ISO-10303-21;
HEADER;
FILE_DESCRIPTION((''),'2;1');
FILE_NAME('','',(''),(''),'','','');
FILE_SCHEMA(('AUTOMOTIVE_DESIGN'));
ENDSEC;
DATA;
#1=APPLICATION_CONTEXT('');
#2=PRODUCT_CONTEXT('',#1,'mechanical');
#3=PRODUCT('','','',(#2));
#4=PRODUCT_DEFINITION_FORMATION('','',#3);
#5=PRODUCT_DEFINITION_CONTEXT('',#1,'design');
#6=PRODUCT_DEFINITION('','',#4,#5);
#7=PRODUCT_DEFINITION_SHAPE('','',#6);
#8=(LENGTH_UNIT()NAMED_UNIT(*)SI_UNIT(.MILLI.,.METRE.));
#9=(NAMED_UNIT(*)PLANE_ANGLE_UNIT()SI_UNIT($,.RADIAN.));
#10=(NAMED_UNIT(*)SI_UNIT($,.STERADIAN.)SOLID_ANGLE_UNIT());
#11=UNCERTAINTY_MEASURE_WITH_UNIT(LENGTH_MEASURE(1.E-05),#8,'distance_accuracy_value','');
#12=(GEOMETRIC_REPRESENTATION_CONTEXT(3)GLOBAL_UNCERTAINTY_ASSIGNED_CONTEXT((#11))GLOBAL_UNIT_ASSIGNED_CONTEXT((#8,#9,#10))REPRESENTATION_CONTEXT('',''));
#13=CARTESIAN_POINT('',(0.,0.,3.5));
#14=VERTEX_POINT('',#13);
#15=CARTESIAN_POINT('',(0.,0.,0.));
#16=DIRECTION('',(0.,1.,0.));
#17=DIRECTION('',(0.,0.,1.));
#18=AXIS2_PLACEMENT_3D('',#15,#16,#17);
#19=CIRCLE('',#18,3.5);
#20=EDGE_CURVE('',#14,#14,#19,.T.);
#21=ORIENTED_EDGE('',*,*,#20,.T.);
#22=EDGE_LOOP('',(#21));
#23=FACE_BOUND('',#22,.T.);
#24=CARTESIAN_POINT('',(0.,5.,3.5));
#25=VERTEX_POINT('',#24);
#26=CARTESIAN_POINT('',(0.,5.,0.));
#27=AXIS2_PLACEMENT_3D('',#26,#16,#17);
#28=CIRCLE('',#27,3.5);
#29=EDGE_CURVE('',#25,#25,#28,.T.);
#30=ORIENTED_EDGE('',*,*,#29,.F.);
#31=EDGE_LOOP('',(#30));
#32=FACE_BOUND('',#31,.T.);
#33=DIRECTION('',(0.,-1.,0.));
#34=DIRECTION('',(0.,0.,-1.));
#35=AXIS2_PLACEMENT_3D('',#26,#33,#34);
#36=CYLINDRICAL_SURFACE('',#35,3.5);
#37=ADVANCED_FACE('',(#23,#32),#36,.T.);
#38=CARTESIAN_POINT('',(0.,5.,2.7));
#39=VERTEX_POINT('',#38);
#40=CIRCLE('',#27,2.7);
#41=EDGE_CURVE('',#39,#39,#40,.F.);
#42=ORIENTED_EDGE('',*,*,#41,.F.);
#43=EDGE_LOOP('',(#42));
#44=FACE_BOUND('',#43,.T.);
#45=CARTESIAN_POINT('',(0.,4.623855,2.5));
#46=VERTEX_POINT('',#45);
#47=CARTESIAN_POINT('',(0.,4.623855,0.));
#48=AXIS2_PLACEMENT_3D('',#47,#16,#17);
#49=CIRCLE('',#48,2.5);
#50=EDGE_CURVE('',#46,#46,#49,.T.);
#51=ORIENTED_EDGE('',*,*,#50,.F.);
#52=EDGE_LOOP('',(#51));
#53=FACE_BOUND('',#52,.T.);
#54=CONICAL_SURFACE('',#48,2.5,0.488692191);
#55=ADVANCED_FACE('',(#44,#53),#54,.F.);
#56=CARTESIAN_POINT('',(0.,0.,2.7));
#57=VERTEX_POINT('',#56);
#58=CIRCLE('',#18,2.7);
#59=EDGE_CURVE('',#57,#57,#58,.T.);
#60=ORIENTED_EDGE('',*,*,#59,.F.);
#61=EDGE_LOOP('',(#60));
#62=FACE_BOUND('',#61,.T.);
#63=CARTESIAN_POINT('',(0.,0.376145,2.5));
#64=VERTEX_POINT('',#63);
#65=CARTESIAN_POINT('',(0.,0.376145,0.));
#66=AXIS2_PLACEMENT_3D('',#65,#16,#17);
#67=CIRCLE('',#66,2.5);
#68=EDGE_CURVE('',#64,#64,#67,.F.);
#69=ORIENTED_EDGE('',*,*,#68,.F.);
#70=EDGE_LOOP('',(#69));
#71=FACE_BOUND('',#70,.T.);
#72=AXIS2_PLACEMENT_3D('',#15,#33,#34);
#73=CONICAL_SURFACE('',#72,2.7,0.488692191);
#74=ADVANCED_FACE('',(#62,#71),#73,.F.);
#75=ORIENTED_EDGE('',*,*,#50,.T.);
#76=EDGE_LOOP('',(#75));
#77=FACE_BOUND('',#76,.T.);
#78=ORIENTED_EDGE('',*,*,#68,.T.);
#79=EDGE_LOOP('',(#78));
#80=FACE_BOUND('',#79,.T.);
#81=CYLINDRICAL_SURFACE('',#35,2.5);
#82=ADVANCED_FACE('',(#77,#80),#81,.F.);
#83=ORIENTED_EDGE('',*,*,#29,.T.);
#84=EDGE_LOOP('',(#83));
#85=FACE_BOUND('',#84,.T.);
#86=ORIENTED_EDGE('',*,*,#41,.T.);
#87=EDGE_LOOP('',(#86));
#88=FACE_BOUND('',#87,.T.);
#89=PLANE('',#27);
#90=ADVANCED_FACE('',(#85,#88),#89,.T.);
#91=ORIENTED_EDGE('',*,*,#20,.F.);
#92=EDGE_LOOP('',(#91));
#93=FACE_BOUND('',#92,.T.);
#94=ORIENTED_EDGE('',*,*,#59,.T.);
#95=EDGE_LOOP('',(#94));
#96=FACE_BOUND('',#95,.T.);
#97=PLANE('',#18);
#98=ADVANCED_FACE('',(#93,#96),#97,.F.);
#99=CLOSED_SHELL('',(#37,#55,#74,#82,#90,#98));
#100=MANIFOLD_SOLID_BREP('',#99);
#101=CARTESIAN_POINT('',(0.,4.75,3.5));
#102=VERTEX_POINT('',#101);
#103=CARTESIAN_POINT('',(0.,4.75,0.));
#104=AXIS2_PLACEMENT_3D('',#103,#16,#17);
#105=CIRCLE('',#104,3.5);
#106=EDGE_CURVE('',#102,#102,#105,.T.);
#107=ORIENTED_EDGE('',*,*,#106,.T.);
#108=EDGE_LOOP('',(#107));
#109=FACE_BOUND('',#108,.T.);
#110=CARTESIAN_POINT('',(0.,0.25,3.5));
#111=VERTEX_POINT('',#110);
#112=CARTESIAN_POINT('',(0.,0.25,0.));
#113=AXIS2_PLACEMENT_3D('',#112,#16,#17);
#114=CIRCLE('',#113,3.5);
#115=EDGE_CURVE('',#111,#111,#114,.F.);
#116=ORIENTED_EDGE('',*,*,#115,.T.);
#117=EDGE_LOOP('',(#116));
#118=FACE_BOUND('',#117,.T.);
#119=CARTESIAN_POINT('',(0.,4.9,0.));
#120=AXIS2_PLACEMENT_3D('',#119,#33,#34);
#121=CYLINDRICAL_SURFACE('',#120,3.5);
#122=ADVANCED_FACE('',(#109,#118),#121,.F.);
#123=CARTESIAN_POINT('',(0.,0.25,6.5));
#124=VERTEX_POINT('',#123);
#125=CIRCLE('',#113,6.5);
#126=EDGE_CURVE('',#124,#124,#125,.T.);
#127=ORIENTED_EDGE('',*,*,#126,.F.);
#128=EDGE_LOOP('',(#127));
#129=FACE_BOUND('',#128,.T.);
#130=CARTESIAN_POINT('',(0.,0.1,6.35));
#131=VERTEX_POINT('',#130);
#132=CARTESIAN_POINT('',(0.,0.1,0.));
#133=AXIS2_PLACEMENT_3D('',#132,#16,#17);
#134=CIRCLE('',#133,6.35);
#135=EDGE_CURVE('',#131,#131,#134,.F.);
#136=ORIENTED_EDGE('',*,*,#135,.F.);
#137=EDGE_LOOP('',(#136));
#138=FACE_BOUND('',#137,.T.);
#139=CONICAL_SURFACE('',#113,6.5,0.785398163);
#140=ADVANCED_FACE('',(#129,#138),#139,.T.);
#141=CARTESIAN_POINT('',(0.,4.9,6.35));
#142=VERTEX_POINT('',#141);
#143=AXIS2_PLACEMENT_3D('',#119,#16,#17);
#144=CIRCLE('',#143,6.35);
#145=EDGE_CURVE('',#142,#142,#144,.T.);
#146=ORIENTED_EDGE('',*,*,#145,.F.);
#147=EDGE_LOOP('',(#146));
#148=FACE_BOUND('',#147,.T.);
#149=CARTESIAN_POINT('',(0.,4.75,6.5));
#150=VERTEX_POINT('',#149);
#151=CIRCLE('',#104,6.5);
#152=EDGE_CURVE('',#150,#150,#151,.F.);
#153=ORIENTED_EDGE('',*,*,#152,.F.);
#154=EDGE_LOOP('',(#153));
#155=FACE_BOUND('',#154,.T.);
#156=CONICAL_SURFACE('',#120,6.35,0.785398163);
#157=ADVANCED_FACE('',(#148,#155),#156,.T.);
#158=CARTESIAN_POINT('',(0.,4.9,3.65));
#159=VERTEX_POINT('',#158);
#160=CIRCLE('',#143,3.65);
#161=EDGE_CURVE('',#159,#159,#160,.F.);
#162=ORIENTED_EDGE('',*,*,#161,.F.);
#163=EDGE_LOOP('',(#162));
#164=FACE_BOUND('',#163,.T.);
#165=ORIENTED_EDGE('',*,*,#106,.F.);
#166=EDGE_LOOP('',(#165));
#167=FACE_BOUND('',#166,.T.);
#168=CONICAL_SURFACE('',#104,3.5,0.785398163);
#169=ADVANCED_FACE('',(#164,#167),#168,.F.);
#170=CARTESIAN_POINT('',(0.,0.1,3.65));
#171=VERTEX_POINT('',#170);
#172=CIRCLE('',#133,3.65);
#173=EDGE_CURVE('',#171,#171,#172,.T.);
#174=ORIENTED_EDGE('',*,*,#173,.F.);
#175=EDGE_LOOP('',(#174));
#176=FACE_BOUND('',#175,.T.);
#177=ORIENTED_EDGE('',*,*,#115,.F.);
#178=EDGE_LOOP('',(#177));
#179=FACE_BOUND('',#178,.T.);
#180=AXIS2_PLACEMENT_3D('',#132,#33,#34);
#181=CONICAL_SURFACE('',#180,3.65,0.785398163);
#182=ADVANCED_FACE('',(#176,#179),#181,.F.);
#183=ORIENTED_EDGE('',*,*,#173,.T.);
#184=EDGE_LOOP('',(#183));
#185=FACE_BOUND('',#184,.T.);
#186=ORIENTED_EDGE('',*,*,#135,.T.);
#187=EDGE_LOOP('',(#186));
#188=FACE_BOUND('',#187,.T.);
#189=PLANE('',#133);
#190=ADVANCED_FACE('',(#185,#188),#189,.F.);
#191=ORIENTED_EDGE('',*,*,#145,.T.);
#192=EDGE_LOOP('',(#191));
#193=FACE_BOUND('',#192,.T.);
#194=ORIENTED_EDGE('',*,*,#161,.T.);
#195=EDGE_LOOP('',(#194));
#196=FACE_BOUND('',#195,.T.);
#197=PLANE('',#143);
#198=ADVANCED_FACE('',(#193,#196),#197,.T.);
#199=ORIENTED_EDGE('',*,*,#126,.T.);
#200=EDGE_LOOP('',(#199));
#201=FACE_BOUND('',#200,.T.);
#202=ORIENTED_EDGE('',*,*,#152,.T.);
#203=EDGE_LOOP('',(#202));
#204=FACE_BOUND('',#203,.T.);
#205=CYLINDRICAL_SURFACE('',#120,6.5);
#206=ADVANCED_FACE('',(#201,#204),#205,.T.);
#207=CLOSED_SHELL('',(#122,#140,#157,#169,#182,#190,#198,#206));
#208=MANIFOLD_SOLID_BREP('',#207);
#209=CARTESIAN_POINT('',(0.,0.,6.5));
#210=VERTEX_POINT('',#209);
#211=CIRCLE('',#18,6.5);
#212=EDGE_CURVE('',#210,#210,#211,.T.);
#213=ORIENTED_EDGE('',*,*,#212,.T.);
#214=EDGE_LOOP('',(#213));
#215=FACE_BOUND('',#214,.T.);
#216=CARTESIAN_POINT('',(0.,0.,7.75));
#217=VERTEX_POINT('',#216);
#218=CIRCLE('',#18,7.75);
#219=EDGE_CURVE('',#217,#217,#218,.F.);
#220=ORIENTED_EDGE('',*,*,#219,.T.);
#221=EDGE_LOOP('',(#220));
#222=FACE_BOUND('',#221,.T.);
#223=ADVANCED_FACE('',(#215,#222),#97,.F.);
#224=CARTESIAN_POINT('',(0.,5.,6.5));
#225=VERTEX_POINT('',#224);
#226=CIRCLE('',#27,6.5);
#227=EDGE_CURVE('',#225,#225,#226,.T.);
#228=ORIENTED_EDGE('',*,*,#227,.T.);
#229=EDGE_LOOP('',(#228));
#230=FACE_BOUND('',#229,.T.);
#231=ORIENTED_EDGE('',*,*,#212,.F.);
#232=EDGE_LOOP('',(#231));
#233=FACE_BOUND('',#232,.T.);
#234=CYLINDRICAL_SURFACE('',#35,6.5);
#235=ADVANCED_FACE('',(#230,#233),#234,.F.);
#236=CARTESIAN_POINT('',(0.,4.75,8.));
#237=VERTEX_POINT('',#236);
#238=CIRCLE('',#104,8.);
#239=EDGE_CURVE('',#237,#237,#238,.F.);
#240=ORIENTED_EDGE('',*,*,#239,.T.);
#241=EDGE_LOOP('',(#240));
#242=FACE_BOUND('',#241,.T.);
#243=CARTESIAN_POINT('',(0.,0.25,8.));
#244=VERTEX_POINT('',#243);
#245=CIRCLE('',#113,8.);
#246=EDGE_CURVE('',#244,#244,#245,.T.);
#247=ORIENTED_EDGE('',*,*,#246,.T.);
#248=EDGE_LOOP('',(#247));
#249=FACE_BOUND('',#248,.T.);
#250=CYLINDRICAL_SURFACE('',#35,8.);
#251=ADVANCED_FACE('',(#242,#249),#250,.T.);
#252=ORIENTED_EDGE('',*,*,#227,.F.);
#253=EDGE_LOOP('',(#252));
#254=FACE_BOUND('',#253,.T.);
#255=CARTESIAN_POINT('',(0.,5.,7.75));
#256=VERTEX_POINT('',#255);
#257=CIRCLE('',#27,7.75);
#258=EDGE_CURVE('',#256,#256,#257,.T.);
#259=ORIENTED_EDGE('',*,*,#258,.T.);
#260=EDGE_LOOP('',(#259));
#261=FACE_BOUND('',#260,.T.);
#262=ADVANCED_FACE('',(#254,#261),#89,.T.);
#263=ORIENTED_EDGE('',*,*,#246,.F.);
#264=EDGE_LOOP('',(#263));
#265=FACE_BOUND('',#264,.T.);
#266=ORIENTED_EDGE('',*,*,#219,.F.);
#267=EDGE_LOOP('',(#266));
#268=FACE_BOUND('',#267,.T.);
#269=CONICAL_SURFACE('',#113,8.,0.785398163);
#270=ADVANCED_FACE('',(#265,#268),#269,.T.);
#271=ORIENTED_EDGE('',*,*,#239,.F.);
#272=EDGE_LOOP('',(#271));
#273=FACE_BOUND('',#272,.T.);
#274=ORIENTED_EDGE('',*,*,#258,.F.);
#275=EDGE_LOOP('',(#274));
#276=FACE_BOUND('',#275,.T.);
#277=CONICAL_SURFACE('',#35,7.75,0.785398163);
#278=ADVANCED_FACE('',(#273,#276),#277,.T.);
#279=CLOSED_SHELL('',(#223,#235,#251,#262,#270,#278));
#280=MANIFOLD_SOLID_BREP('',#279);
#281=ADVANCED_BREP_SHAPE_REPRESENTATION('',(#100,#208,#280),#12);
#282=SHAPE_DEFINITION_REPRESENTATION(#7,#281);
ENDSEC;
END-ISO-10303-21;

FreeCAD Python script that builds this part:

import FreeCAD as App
import Part
import Sketcher
Q = App.Units.Quantity


def edges_at(feature, points):
    """Names of the edges that pass closest to the given points."""
    edges = feature.Shape.Edges
    near = lambda p: min(range(len(edges)), key=lambda i: edges[i].distToShape(Part.Vertex(*p))[0])
    return sorted({f"Edge{near(p) + 1}" for p in points})

doc = App.newDocument("Part")
body = doc.addObject("PartDesign::Body", "Body")

sketch1 = doc.addObject("Sketcher::SketchObject", "Sketch")
body.addObject(sketch1)
sketch1.AttachmentSupport = (doc.XZ_Plane, [""])
sketch1.MapMode = "FlatFace"
sketch1.addGeometry([
    Part.Circle(App.Vector(0, 0, 0), App.Vector(0, 0, 1), 3.5),
    Part.Circle(App.Vector(0, 0, 0), App.Vector(0, 0, 1), 2.5),
], False)
sketch1.addConstraint([
    Sketcher.Constraint("Coincident", 0, 3, -1, 1),
    Sketcher.Constraint("Coincident", 1, 3, -1, 1),
    Sketcher.Constraint("Diameter", 0, Q("7 mm")),
    Sketcher.Constraint("Diameter", 1, Q("5 mm")),
])
pad1 = doc.addObject("PartDesign::Pad", "Pad")
body.addObject(pad1)
pad1.Profile = sketch1
pad1.Length = 5
pad1.Reversed = True
doc.recompute()

chamfer = doc.addObject("PartDesign::Chamfer", "Chamfer")
body.addObject(chamfer)
chamfer.Base = (pad1, edges_at(pad1, [(-2.5, 5, 0)]))
chamfer.ChamferType = "Two distances"
chamfer.Size = 0.2
chamfer.Size2 = 0.376145
chamfer.FlipDirection = True
doc.recompute()

chamfer2 = doc.addObject("PartDesign::Chamfer", "Chamfer001")
body.addObject(chamfer2)
chamfer2.Base = (chamfer, edges_at(chamfer, [(-2.5, 0, 0)]))
chamfer2.ChamferType = "Two distances"
chamfer2.Size = 0.2
chamfer2.Size2 = 0.376145
chamfer2.FlipDirection = True
body2 = doc.addObject("PartDesign::Body", "Body001")

sketch2 = doc.addObject("Sketcher::SketchObject", "Sketch001")
body2.addObject(sketch2)
sketch2.AttachmentSupport = (doc.getObject("XZ_Plane001"), [""])
sketch2.MapMode = "FlatFace"
sketch2.addGeometry([
    Part.Circle(App.Vector(0, 0, 0), App.Vector(0, 0, 1), 8),
    Part.Circle(App.Vector(0, 0, 0), App.Vector(0, 0, 1), 6.5),
], False)
sketch2.addConstraint([
    Sketcher.Constraint("Coincident", 0, 3, -1, 1),
    Sketcher.Constraint("Coincident", 1, 3, -1, 1),
    Sketcher.Constraint("Diameter", 0, Q("16 mm")),
    Sketcher.Constraint("Diameter", 1, Q("13 mm")),
])
pad2 = doc.addObject("PartDesign::Pad", "Pad001")
body2.addObject(pad2)
pad2.Profile = sketch2
pad2.Length = 5
pad2.Reversed = True
doc.recompute()

chamfer3 = doc.addObject("PartDesign::Chamfer", "Chamfer002")
body2.addObject(chamfer3)
chamfer3.Base = (pad2, edges_at(pad2, [(-8, 0, 0), (-8, 5, 0)]))
chamfer3.Size = 0.25
body3 = doc.addObject("PartDesign::Body", "Body002")

sketch3 = doc.addObject("Sketcher::SketchObject", "Sketch002")
body3.addObject(sketch3)
sketch3.AttachmentSupport = (doc.getObject("XZ_Plane002"), [""])
sketch3.MapMode = "FlatFace"
sketch3.AttachmentOffset = App.Placement(App.Vector(0, 0, -0.1), App.Rotation())
sketch3.addGeometry([
    Part.Circle(App.Vector(0, 0, 0), App.Vector(0, 0, 1), 6.5),
    Part.Circle(App.Vector(0, 0, 0), App.Vector(0, 0, 1), 3.5),
], False)
sketch3.addConstraint([
    Sketcher.Constraint("Coincident", 0, 3, -1, 1),
    Sketcher.Constraint("Coincident", 1, 3, -1, 1),
    Sketcher.Constraint("Diameter", 0, Q("13 mm")),
    Sketcher.Constraint("Diameter", 1, Q("7 mm")),
])
pad3 = doc.addObject("PartDesign::Pad", "Pad002")
body3.addObject(pad3)
pad3.Profile = sketch3
pad3.Length = 4.8
pad3.Reversed = True
doc.recompute()

chamfer4 = doc.addObject("PartDesign::Chamfer", "Chamfer003")
body3.addObject(chamfer4)
chamfer4.Base = (pad3, edges_at(pad3, [
    (-6.5, 4.9, 0),
    (-6.5, 0.1, 0),
    (-3.5, 0.1, 0),
    (-3.5, 4.9, 0),
]))
chamfer4.Size = 0.15

doc.recompute()
